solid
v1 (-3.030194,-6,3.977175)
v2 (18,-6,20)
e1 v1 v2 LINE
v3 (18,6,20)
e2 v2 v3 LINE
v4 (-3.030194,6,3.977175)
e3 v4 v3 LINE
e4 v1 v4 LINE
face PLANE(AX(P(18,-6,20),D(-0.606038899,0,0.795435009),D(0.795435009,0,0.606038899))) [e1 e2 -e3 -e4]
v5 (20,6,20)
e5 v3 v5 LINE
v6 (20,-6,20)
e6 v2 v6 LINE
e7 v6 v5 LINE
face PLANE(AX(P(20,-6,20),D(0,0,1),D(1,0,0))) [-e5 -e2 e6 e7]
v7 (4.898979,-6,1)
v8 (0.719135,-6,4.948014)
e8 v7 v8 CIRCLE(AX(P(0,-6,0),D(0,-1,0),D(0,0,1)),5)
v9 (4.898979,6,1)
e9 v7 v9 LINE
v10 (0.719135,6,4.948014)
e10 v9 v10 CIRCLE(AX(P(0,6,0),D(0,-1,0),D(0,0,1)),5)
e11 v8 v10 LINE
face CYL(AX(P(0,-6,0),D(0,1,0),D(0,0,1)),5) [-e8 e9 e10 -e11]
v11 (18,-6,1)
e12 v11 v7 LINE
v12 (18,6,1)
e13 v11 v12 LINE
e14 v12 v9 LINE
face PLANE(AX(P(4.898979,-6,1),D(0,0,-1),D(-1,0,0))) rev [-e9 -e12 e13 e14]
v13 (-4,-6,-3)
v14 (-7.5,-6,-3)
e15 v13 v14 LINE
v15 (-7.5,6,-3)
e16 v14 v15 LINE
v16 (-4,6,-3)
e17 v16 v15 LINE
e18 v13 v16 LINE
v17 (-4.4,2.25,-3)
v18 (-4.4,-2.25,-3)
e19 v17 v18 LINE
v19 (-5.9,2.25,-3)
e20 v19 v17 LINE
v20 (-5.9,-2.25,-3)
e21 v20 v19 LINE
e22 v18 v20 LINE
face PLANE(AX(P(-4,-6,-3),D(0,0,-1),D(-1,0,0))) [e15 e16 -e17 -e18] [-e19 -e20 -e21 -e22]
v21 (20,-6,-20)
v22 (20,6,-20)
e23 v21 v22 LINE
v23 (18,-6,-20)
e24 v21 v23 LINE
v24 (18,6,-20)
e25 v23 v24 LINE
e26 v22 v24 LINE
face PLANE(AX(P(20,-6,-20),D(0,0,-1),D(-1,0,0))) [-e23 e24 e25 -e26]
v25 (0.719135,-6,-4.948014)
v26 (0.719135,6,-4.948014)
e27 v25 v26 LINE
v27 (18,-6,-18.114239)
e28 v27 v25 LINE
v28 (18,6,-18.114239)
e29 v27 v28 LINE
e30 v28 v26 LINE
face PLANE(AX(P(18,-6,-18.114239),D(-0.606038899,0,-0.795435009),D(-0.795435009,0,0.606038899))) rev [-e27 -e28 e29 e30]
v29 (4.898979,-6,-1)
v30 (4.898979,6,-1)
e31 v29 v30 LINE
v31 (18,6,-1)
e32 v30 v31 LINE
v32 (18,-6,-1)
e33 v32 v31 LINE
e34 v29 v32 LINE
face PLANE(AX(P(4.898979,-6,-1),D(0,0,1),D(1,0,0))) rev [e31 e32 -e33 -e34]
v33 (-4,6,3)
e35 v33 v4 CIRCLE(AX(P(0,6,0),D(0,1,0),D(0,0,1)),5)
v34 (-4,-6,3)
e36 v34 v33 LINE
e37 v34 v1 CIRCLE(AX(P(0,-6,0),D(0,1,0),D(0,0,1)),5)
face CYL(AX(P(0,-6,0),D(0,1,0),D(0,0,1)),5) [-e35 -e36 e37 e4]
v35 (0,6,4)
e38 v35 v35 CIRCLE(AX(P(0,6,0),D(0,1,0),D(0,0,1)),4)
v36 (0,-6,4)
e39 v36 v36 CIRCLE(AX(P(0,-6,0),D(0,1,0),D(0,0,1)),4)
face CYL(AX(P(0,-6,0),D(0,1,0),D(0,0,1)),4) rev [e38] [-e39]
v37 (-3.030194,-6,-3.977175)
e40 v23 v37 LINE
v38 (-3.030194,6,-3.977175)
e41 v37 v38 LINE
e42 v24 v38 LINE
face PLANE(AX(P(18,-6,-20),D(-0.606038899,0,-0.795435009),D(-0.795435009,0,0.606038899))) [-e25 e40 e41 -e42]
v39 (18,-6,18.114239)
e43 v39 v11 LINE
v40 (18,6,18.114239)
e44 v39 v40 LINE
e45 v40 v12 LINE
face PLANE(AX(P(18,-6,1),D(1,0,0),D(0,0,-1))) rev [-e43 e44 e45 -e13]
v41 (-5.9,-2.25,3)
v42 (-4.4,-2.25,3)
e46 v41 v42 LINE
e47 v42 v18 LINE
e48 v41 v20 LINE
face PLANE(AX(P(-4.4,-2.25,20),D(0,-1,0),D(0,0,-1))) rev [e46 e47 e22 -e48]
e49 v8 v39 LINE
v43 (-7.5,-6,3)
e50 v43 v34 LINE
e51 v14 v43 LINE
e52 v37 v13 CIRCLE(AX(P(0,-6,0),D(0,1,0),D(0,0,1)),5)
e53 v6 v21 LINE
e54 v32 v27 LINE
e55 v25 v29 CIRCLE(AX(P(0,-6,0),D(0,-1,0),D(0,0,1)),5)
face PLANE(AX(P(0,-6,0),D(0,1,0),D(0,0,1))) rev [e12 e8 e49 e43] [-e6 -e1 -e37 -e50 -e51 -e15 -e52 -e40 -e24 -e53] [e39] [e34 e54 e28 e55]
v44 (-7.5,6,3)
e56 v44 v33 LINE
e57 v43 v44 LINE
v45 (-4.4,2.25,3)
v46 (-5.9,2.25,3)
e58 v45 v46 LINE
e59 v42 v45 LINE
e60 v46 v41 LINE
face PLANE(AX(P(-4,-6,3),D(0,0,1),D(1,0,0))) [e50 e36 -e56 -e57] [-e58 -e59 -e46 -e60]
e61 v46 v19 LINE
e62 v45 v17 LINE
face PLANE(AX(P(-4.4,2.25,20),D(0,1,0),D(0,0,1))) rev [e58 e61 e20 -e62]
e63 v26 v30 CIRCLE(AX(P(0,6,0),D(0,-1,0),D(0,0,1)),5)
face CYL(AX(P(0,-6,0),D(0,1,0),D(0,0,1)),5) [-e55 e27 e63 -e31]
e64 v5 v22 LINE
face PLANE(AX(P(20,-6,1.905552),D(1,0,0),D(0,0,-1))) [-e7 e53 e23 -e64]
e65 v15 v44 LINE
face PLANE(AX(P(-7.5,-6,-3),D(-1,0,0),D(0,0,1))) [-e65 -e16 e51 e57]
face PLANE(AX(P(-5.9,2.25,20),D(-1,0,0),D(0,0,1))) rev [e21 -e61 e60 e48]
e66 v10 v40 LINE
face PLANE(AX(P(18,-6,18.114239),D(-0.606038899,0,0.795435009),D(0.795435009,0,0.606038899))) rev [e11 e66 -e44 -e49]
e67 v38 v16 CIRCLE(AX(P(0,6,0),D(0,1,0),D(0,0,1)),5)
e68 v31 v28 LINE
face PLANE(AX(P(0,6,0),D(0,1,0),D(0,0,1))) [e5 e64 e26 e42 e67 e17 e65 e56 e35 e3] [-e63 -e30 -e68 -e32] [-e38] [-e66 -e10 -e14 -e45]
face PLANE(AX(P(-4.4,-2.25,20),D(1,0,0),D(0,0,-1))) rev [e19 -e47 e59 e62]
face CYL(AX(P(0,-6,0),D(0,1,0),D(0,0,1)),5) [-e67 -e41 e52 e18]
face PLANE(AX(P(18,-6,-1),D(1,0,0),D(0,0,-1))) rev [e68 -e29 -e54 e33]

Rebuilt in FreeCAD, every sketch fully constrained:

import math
import FreeCAD as App
import Part
import Sketcher

V = App.Vector
Q = App.Units.Quantity

doc = App.newDocument("Part")
params = doc.addObject("Spreadsheet::Sheet", "Params")
for row, (alias, value) in enumerate([
    ("sketch1_diameter", "8 mm"),
    ("sketch1_radius", "5 mm"),
    ("sketch1_width", "2 mm"),
    ("sketch1_height", "6 mm"),
    ("sketch1_height2", "40 mm"),
    ("pad1_length", "6 mm"),
    ("pad1_length2", "6 mm"),
    ("sketch2_width", "1.5 mm"),
    ("sketch2_height", "4.5 mm"),
], start=1):
    params.set(f"A{row}", alias)
    params.set(f"B{row}", "=" + value)
    params.setAlias(f"B{row}", alias)

body = doc.addObject("PartDesign::Body", "Body")

sketch1 = body.newObject("Sketcher::SketchObject", "Sketch")
sketch1.AttachmentSupport = (doc.getObject("XZ_Plane"), [""])
sketch1.MapMode = "FlatFace"
sketch1.addGeometry(Part.LineSegment(V(-4, -3, 0), V(-7.5, -3, 0)), False)
sketch1.addGeometry(Part.LineSegment(V(-7.5, -3, 0), V(-7.5, 3, 0)), False)
sketch1.addGeometry(Part.LineSegment(V(-7.5, 3, 0), V(-4, 3, 0)), False)
sketch1.addGeometry(Part.ArcOfCircle(Part.Circle(V(0, 0, 0), V(0, 0, 1), 5), math.radians(127.3), math.radians(143.13)), False)
sketch1.addGeometry(Part.LineSegment(V(-3, 4, 0), V(18, 20, 0)), False)
sketch1.addGeometry(Part.LineSegment(V(18, 20, 0), V(20, 20, 0)), False)
sketch1.addGeometry(Part.LineSegment(V(20, 20, 0), V(20, -20, 0)), False)
sketch1.addGeometry(Part.LineSegment(V(20, -20, 0), V(18, -20, 0)), False)
sketch1.addGeometry(Part.LineSegment(V(18, -20, 0), V(-3, -4, 0)), False)
sketch1.addGeometry(Part.ArcOfCircle(Part.Circle(V(0, 0, 0), V(0, 0, 1), 5), math.radians(-143.13), math.radians(-127.3)), False)
sketch1.addGeometry(Part.ArcOfCircle(Part.Circle(V(0, 0, 0), V(0, 0, 1), 5), math.radians(12), math.radians(82)), False)
sketch1.addGeometry(Part.LineSegment(V(4.9, 1, 0), V(18, 1, 0)), False)
sketch1.addGeometry(Part.LineSegment(V(18, 1, 0), V(18, 18.1, 0)), False)
sketch1.addGeometry(Part.LineSegment(V(18, 18.1, 0), V(0.7, 4.9, 0)), False)
sketch1.addGeometry(Part.Circle(V(0, 0, 0), V(0, 0, 1), 4), False)
sketch1.addGeometry(Part.LineSegment(V(18, -1, 0), V(4.9, -1, 0)), False)
sketch1.addGeometry(Part.ArcOfCircle(Part.Circle(V(0, 0, 0), V(0, 0, 1), 5), math.radians(-82), math.radians(-12)), False)
sketch1.addGeometry(Part.LineSegment(V(0.7, -4.9, 0), V(18, -18.1, 0)), False)
sketch1.addGeometry(Part.LineSegment(V(18, -18.1, 0), V(18, -1, 0)), False)
sketch1.addConstraint(Sketcher.Constraint("Coincident", 0, 2, 1, 1))
sketch1.addConstraint(Sketcher.Constraint("Coincident", 1, 2, 2, 1))
sketch1.addConstraint(Sketcher.Constraint("Coincident", 2, 2, 3, 2))
sketch1.addConstraint(Sketcher.Constraint("Tangent", 3, 1, 4, 1))
sketch1.addConstraint(Sketcher.Constraint("Coincident", 4, 2, 5, 1))
sketch1.addConstraint(Sketcher.Constraint("Coincident", 5, 2, 6, 1))
sketch1.addConstraint(Sketcher.Constraint("Coincident", 6, 2, 7, 1))
sketch1.addConstraint(Sketcher.Constraint("Coincident", 7, 2, 8, 1))
sketch1.addConstraint(Sketcher.Constraint("Tangent", 8, 2, 9, 2))
sketch1.addConstraint(Sketcher.Constraint("Coincident", 9, 1, 0, 1))
sketch1.addConstraint(Sketcher.Constraint("Coincident", 10, 1, 11, 1))
sketch1.addConstraint(Sketcher.Constraint("Coincident", 11, 2, 12, 1))
sketch1.addConstraint(Sketcher.Constraint("Coincident", 12, 2, 13, 1))
sketch1.addConstraint(Sketcher.Constraint("Coincident", 13, 2, 10, 2))
sketch1.addConstraint(Sketcher.Constraint("Coincident", 15, 2, 16, 2))
sketch1.addConstraint(Sketcher.Constraint("Coincident", 16, 1, 17, 1))
sketch1.addConstraint(Sketcher.Constraint("Coincident", 17, 2, 18, 1))
sketch1.addConstraint(Sketcher.Constraint("Coincident", 18, 2, 15, 1))
sketch1.addConstraint(Sketcher.Constraint("Horizontal", 0))
sketch1.addConstraint(Sketcher.Constraint("Vertical", 1))
sketch1.addConstraint(Sketcher.Constraint("Horizontal", 2))
sketch1.addConstraint(Sketcher.Constraint("Horizontal", 5))
sketch1.addConstraint(Sketcher.Constraint("Vertical", 6))
sketch1.addConstraint(Sketcher.Constraint("Horizontal", 7))
sketch1.addConstraint(Sketcher.Constraint("Horizontal", 11))
sketch1.addConstraint(Sketcher.Constraint("Vertical", 12))
sketch1.addConstraint(Sketcher.Constraint("Horizontal", 15))
sketch1.addConstraint(Sketcher.Constraint("Vertical", 18))
sketch1.addConstraint(Sketcher.Constraint("Coincident", 3, 3, -1, 1))
sketch1.addConstraint(Sketcher.Constraint("Coincident", 9, 3, -1, 1))
sketch1.addConstraint(Sketcher.Constraint("Coincident", 10, 3, -1, 1))
sketch1.addConstraint(Sketcher.Constraint("Coincident", 14, 3, -1, 1))
sketch1.addConstraint(Sketcher.Constraint("Coincident", 16, 3, -1, 1))
sketch1.addConstraint(Sketcher.Constraint("Equal", 3, 9))
sketch1.addConstraint(Sketcher.Constraint("Equal", 9, 10))
sketch1.addConstraint(Sketcher.Constraint("Equal", 10, 16))
sketch1.addConstraint(Sketcher.Constraint("Symmetric", 4, 2, 7, 2, -1))
sketch1.addConstraint(Sketcher.Constraint("Symmetric", 12, 2, 17, 2, -1))
sketch1.addConstraint(Sketcher.Constraint("Parallel", 4, 13))
sketch1.addConstraint(Sketcher.Constraint("Parallel", 8, 17))
sketch1.addConstraint(Sketcher.Constraint("Vertical", 2, 2, 9, 1))
sketch1.addConstraint(Sketcher.Constraint("Vertical", 7, 2, 11, 2))
sketch1.addConstraint(Sketcher.Constraint("Vertical", 10, 1, 15, 2))
sketch1.addConstraint(Sketcher.Constraint("Diameter", 14, Q("8 mm")))
sketch1.addConstraint(Sketcher.Constraint("Radius", 3, Q("5 mm")))
sketch1.addConstraint(Sketcher.Constraint("DistanceX", 5, 1, 5, 2, Q("2 mm")))
sketch1.addConstraint(Sketcher.Constraint("DistanceY", 1, 1, 1, 2, Q("6 mm")))
sketch1.addConstraint(Sketcher.Constraint("DistanceY", 6, 2, 6, 1, Q("40 mm")))
sketch1.addConstraint(Sketcher.Constraint("DistanceX", 0, 2, 0, 1, Q("3.5 mm")))
sketch1.addConstraint(Sketcher.Constraint("DistanceX", -1, 1, 4, 2, Q("18 mm")))
sketch1.addConstraint(Sketcher.Constraint("DistanceY", -1, 1, 10, 1, Q("1 mm")))
sketch1.addConstraint(Sketcher.Constraint("DistanceY", 12, 1, 12, 2, Q("17.114239 mm")))
sketch1.setExpression("Constraints[43]", "Params.sketch1_diameter")
sketch1.setExpression("Constraints[44]", "Params.sketch1_radius")
sketch1.setExpression("Constraints[45]", "Params.sketch1_width")
sketch1.setExpression("Constraints[46]", "Params.sketch1_height")
sketch1.setExpression("Constraints[47]", "Params.sketch1_height2")
pad1 = body.newObject("PartDesign::Pad", "Pad")
pad1.Profile = sketch1
pad1.Type = "TwoLengths"
pad1.setExpression("Length", "Params.pad1_length")
pad1.setExpression("Length2", "Params.pad1_length2")
pad1.Reversed = True

sketch2 = body.newObject("Sketcher::SketchObject", "Sketch001")
sketch2.AttachmentSupport = (doc.getObject("XY_Plane"), [""])
sketch2.MapMode = "FlatFace"
sketch2.AttachmentOffset = App.Placement(V(0, 0, -3), App.Rotation())
sketch2.addGeometry(Part.LineSegment(V(-4.4, 2.2, 0), V(-4.4, -2.2, 0)), False)
sketch2.addGeometry(Part.LineSegment(V(-4.4, -2.2, 0), V(-5.9, -2.2, 0)), False)
sketch2.addGeometry(Part.LineSegment(V(-5.9, -2.2, 0), V(-5.9, 2.2, 0)), False)
sketch2.addGeometry(Part.LineSegment(V(-5.9, 2.2, 0), V(-4.4, 2.2, 0)), False)
sketch2.addConstraint(Sketcher.Constraint("Coincident", 0, 2, 1, 1))
sketch2.addConstraint(Sketcher.Constraint("Coincident", 1, 2, 2, 1))
sketch2.addConstraint(Sketcher.Constraint("Coincident", 2, 2, 3, 1))
sketch2.addConstraint(Sketcher.Constraint("Coincident", 3, 2, 0, 1))
sketch2.addConstraint(Sketcher.Constraint("Vertical", 0))
sketch2.addConstraint(Sketcher.Constraint("Horizontal", 1))
sketch2.addConstraint(Sketcher.Constraint("Vertical", 2))
sketch2.addConstraint(Sketcher.Constraint("Horizontal", 3))
sketch2.addConstraint(Sketcher.Constraint("DistanceX", 1, 2, 1, 1, Q("1.5 mm")))
sketch2.addConstraint(Sketcher.Constraint("DistanceY", 0, 2, 0, 1, Q("4.5 mm")))
sketch2.addConstraint(Sketcher.Constraint("DistanceX", 0, 2, -1, 1, Q("4.4 mm")))
sketch2.addConstraint(Sketcher.Constraint("DistanceY", 0, 2, -1, 1, Q("2.25 mm")))
sketch2.setExpression("Constraints[8]", "Params.sketch2_width")
sketch2.setExpression("Constraints[9]", "Params.sketch2_height")
pocket1 = body.newObject("PartDesign::Pocket", "Pocket")
pocket1.Profile = sketch2
pocket1.Type = "ThroughAll"
pocket1.Reversed = True

doc.recompute()
